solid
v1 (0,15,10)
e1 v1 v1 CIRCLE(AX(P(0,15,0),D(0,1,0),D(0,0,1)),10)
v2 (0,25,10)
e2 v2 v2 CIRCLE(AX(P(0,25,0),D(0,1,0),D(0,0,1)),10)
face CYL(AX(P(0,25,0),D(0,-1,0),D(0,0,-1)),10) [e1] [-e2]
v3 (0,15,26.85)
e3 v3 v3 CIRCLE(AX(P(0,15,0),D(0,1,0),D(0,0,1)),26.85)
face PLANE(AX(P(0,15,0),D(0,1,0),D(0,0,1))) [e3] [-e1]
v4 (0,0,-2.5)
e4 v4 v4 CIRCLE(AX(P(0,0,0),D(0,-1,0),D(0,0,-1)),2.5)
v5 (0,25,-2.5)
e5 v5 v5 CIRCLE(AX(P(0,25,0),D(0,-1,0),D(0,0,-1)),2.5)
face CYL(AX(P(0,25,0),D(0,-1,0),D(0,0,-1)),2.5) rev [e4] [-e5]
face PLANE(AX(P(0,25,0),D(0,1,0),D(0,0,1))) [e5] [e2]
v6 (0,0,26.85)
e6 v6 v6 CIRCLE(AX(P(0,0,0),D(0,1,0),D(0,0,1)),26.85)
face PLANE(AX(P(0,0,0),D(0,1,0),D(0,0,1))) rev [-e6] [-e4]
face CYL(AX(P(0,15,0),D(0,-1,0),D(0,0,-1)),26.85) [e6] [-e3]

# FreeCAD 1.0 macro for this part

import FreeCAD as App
import Part
import Sketcher

V = App.Vector

doc = App.newDocument("Part")
body = doc.addObject("PartDesign::Body", "Body")

sketch1 = body.newObject("Sketcher::SketchObject", "Sketch")
sketch1.AttachmentSupport = (doc.getObject("XZ_Plane"), [""])
sketch1.MapMode = "FlatFace"
sketch1.addGeometry(Part.Circle(V(0, 0, 0), V(0, 0, 1), 27), False)
sketch1.addConstraint([
    Sketcher.Constraint("Coincident", 0, 3, -1, 1),
    Sketcher.Constraint("Diameter", 0, 53.7),
])
pad1 = body.newObject("PartDesign::Pad", "Pad")
pad1.Profile = sketch1
pad1.Length = 15
pad1.Reversed = True

sketch2 = body.newObject("Sketcher::SketchObject", "Sketch001")
sketch2.AttachmentSupport = (doc.getObject("XZ_Plane"), [""])
sketch2.MapMode = "FlatFace"
sketch2.AttachmentOffset = App.Placement(V(0, 0, -15), App.Rotation())
sketch2.addGeometry(Part.Circle(V(0, 0, 0), V(0, 0, 1), 10), False)
sketch2.addConstraint([
    Sketcher.Constraint("Coincident", 0, 3, -1, 1),
    Sketcher.Constraint("Diameter", 0, 20.0),
])
pad2 = body.newObject("PartDesign::Pad", "Pad001")
pad2.Profile = sketch2
pad2.Length = 10
pad2.Reversed = True

sketch3 = body.newObject("Sketcher::SketchObject", "Sketch002")
sketch3.AttachmentSupport = (doc.getObject("XZ_Plane"), [""])
sketch3.MapMode = "FlatFace"
sketch3.addGeometry(Part.Circle(V(0, 0, 0), V(0, 0, 1), 2.5), False)
sketch3.addConstraint([
    Sketcher.Constraint("Coincident", 0, 3, -1, 1),
    Sketcher.Constraint("Diameter", 0, 5.0),
])
pocket1 = body.newObject("PartDesign::Pocket", "Pocket")
pocket1.Profile = sketch3
pocket1.Type = "ThroughAll"

doc.recompute()
